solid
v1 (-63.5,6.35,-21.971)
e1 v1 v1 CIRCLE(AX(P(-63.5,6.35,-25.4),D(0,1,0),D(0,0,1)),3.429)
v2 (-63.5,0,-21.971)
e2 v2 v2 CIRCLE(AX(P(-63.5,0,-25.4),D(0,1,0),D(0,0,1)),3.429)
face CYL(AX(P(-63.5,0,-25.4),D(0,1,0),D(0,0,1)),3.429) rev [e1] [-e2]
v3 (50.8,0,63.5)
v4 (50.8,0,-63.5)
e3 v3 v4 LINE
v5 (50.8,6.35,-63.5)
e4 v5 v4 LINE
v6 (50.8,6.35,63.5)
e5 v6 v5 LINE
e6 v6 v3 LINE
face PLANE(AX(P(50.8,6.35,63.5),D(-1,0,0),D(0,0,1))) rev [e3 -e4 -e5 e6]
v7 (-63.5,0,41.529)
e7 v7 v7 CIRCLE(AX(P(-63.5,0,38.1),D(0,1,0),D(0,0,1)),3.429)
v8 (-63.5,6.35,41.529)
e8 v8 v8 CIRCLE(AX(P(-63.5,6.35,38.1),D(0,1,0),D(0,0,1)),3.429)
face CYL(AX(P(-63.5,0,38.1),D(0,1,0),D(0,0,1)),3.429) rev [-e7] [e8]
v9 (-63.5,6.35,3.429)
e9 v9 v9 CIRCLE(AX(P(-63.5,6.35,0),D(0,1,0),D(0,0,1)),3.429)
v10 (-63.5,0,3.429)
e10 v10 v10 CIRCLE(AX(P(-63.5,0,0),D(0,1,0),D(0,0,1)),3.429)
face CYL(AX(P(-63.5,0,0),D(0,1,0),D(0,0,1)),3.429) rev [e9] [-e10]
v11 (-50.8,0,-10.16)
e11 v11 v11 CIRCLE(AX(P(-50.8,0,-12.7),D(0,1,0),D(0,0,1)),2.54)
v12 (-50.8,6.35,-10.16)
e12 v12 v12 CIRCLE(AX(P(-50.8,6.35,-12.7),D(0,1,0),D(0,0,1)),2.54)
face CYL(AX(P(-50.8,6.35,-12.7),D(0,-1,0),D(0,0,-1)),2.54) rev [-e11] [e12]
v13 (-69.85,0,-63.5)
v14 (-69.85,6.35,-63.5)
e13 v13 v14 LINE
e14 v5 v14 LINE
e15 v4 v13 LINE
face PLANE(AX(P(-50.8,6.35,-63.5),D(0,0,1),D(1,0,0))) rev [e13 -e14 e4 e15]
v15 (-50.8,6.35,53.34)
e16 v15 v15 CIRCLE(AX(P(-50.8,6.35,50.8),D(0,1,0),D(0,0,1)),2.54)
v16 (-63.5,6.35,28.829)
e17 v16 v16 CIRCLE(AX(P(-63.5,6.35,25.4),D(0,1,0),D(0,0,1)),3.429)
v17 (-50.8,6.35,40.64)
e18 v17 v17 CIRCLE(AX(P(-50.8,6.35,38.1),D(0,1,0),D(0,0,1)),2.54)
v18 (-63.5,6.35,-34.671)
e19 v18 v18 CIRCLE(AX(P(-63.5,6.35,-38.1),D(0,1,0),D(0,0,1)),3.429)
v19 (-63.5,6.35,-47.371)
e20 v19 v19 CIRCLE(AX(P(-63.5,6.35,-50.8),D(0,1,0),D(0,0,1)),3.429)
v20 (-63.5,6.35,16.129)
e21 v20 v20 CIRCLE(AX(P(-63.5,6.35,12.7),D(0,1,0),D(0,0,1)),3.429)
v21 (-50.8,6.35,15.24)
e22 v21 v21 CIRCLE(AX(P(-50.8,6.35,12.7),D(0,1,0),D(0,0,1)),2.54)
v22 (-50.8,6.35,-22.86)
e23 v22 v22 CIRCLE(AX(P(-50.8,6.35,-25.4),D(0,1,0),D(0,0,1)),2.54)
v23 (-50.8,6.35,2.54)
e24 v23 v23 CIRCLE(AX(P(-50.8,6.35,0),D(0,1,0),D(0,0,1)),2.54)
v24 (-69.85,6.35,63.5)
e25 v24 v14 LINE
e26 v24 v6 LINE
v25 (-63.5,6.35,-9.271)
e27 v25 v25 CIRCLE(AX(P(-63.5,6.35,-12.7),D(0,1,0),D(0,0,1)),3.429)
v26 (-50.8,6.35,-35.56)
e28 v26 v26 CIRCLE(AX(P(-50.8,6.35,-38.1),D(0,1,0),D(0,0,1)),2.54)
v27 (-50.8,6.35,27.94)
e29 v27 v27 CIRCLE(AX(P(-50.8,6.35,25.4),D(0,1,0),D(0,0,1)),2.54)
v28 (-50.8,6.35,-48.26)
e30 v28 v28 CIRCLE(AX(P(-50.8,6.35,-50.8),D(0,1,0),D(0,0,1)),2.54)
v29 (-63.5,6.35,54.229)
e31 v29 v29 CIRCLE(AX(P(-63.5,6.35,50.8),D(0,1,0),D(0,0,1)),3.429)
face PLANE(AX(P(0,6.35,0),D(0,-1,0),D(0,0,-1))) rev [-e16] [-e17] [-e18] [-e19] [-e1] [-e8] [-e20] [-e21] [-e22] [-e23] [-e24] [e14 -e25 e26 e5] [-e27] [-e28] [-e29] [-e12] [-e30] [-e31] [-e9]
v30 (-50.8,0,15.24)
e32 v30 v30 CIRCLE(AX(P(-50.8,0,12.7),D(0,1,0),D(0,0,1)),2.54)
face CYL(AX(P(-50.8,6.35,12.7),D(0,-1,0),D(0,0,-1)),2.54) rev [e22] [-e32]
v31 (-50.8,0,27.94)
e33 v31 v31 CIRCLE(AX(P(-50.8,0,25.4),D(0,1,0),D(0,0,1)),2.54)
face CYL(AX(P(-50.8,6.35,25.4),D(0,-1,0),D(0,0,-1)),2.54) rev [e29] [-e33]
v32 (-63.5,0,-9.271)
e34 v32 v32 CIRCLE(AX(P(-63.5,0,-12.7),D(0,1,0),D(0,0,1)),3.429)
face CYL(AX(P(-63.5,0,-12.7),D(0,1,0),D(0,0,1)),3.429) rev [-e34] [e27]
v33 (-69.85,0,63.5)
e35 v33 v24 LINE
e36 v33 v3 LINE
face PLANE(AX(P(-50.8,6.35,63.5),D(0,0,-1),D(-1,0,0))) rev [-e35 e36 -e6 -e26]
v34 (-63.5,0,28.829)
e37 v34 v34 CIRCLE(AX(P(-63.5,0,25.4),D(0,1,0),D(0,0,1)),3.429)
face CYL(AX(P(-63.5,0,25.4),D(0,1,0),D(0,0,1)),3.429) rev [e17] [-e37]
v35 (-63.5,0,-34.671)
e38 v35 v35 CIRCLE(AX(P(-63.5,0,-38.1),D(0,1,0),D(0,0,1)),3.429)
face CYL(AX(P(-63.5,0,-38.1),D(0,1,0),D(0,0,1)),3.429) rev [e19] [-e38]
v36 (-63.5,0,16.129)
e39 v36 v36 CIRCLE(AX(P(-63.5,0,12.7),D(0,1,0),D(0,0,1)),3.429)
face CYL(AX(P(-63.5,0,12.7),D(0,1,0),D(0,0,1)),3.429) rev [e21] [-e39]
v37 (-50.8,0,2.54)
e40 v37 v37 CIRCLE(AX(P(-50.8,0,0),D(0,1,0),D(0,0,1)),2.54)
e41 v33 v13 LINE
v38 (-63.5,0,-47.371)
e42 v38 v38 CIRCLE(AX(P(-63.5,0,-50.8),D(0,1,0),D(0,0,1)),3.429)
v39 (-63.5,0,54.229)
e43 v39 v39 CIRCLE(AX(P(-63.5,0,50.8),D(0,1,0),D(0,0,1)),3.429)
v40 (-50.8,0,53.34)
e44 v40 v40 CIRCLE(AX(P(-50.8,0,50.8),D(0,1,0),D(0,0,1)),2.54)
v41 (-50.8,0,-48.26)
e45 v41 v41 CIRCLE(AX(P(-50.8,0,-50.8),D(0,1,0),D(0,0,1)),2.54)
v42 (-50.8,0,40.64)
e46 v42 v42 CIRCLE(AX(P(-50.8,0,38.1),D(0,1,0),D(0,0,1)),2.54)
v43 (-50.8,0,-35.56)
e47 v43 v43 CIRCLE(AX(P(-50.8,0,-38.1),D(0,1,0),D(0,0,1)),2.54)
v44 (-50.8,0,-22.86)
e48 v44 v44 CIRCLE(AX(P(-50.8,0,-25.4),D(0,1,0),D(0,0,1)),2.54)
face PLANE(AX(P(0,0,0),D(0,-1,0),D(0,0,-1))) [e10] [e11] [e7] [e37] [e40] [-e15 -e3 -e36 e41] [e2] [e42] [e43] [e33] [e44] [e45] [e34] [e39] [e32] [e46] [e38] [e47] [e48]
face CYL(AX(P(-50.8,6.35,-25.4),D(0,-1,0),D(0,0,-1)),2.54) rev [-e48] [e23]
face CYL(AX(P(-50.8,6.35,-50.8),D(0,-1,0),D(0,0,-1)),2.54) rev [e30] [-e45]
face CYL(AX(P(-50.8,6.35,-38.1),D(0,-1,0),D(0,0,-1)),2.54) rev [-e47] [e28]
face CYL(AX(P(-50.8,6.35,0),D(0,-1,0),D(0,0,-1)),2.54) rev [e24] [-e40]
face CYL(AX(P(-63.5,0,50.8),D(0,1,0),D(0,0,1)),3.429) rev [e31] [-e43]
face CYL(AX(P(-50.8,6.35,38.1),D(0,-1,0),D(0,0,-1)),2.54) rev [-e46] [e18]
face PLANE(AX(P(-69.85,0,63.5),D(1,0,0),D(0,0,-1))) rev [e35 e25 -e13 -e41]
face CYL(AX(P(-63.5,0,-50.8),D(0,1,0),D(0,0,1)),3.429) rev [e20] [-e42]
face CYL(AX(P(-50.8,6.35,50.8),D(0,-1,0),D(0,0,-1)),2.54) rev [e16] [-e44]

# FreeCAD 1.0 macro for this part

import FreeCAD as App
import Part
import Sketcher
Q = App.Units.Quantity

doc = App.newDocument("Part")
body = doc.addObject("PartDesign::Body", "Body")

# Sketch on XZ plane
sketch1 = doc.addObject("Sketcher::SketchObject", "Sketch")
body.addObject(sketch1)
sketch1.AttachmentSupport = (doc.XZ_Plane, [""])
sketch1.MapMode = "FlatFace"
sketch1.addGeometry([
    Part.LineSegment(App.Vector(-50.8, -63.5, 0), App.Vector(-50.8, 63.5, 0)),
    Part.LineSegment(App.Vector(-50.8, 63.5, 0), App.Vector(50.8, 63.5, 0)),
    Part.LineSegment(App.Vector(50.8, 63.5, 0), App.Vector(50.8, -63.5, 0)),
    Part.LineSegment(App.Vector(50.8, -63.5, 0), App.Vector(-50.8, -63.5, 0)),
], False)
sketch1.addConstraint([
    Sketcher.Constraint("Coincident", 0, 2, 1, 1),
    Sketcher.Constraint("Coincident", 1, 2, 2, 1),
    Sketcher.Constraint("Coincident", 2, 2, 3, 1),
    Sketcher.Constraint("Coincident", 3, 2, 0, 1),
    Sketcher.Constraint("Vertical", 0),
    Sketcher.Constraint("Horizontal", 1),
    Sketcher.Constraint("Vertical", 2),
    Sketcher.Constraint("Horizontal", 3),
    Sketcher.Constraint("Symmetric", 0, 2, 2, 2, -1, 1),
    Sketcher.Constraint("DistanceX", 1, 1, 1, 2, Q("4 in")),
    Sketcher.Constraint("DistanceY", 0, 1, 0, 2, Q("5 in")),
])
pad1 = doc.addObject("PartDesign::Pad", "Pad")
body.addObject(pad1)
pad1.Profile = sketch1
pad1.Length = Q("0.25 in")
pad1.Reversed = True

# Sketch on XZ plane
sketch2 = doc.addObject("Sketcher::SketchObject", "Sketch001")
body.addObject(sketch2)
sketch2.AttachmentSupport = (doc.XZ_Plane, [""])
sketch2.MapMode = "FlatFace"
sketch2.AttachmentOffset = App.Placement(App.Vector(0, 0, -0.25 * 25.4), App.Rotation())
sketch2.addGeometry([
    Part.LineSegment(App.Vector(-114.3, -63.5, 0), App.Vector(-114.3, 63.5, 0)),  # 0
    Part.LineSegment(App.Vector(-114.3, 63.5, 0), App.Vector(-50.8, 63.5, 0)),  # 1
    Part.LineSegment(App.Vector(-50.8, 63.5, 0), App.Vector(-50.8, -63.5, 0)),  # 2
    Part.LineSegment(App.Vector(-50.8, -63.5, 0), App.Vector(-114.3, -63.5, 0)),  # 3
    Part.Circle(App.Vector(-101.6, 50.8, 0), App.Vector(0, 0, 1), 3.429),  # 4
    Part.Circle(App.Vector(-101.6, 38.1, 0), App.Vector(0, 0, 1), 3.429),  # 5
    Part.Circle(App.Vector(-88.9, 50.8, 0), App.Vector(0, 0, 1), 3.429),  # 6
    Part.Circle(App.Vector(-88.9, 38.1, 0), App.Vector(0, 0, 1), 3.429),  # 7
    Part.Circle(App.Vector(-101.6, 25.4, 0), App.Vector(0, 0, 1), 3.429),  # 8
    Part.Circle(App.Vector(-101.6, 12.7, 0), App.Vector(0, 0, 1), 3.429),  # 9
    Part.Circle(App.Vector(-88.9, 25.4, 0), App.Vector(0, 0, 1), 3.429),  # 10
    Part.Circle(App.Vector(-88.9, 12.7, 0), App.Vector(0, 0, 1), 3.429),  # 11
    Part.Circle(App.Vector(-76.2, 50.8, 0), App.Vector(0, 0, 1), 3.429),  # 12
    Part.Circle(App.Vector(-76.2, 38.1, 0), App.Vector(0, 0, 1), 3.429),  # 13
    Part.Circle(App.Vector(-63.5, 50.8, 0), App.Vector(0, 0, 1), 3.429),  # 14
    Part.Circle(App.Vector(-63.5, 38.1, 0), App.Vector(0, 0, 1), 3.429),  # 15
    Part.Circle(App.Vector(-76.2, 25.4, 0), App.Vector(0, 0, 1), 3.429),  # 16
    Part.Circle(App.Vector(-76.2, 12.7, 0), App.Vector(0, 0, 1), 3.429),  # 17
    Part.Circle(App.Vector(-63.5, 25.4, 0), App.Vector(0, 0, 1), 3.429),  # 18
    Part.Circle(App.Vector(-63.5, 12.7, 0), App.Vector(0, 0, 1), 3.429),  # 19
    Part.Circle(App.Vector(-101.6, 0, 0), App.Vector(0, 0, 1), 3.429),  # 20
    Part.Circle(App.Vector(-101.6, -12.7, 0), App.Vector(0, 0, 1), 3.429),  # 21
    Part.Circle(App.Vector(-101.6, -25.4, 0), App.Vector(0, 0, 1), 3.429),  # 22
    Part.Circle(App.Vector(-88.9, 0, 0), App.Vector(0, 0, 1), 3.429),  # 23
    Part.Circle(App.Vector(-88.9, -12.7, 0), App.Vector(0, 0, 1), 3.429),  # 24
    Part.Circle(App.Vector(-88.9, -25.4, 0), App.Vector(0, 0, 1), 3.429),  # 25
    Part.Circle(App.Vector(-101.6, -38.1, 0), App.Vector(0, 0, 1), 3.429),  # 26
    Part.Circle(App.Vector(-101.6, -50.8, 0), App.Vector(0, 0, 1), 3.429),  # 27
    Part.Circle(App.Vector(-88.9, -38.1, 0), App.Vector(0, 0, 1), 3.429),  # 28
    Part.Circle(App.Vector(-88.9, -50.8, 0), App.Vector(0, 0, 1), 3.429),  # 29
    Part.Circle(App.Vector(-76.2, 0, 0), App.Vector(0, 0, 1), 3.429),  # 30
    Part.Circle(App.Vector(-76.2, -12.7, 0), App.Vector(0, 0, 1), 3.429),  # 31
    Part.Circle(App.Vector(-76.2, -25.4, 0), App.Vector(0, 0, 1), 3.429),  # 32
    Part.Circle(App.Vector(-63.5, 0, 0), App.Vector(0, 0, 1), 3.429),  # 33
    Part.Circle(App.Vector(-63.5, -12.7, 0), App.Vector(0, 0, 1), 3.429),  # 34
    Part.Circle(App.Vector(-63.5, -25.4, 0), App.Vector(0, 0, 1), 3.429),  # 35
    Part.Circle(App.Vector(-76.2, -38.1, 0), App.Vector(0, 0, 1), 3.429),  # 36
    Part.Circle(App.Vector(-76.2, -50.8, 0), App.Vector(0, 0, 1), 3.429),  # 37
    Part.Circle(App.Vector(-63.5, -38.1, 0), App.Vector(0, 0, 1), 3.429),  # 38
    Part.Circle(App.Vector(-63.5, -50.8, 0), App.Vector(0, 0, 1), 3.429),  # 39
], False)
sketch2.addConstraint([
    Sketcher.Constraint("Coincident", 0, 2, 1, 1),
    Sketcher.Constraint("Coincident", 1, 2, 2, 1),
    Sketcher.Constraint("Coincident", 2, 2, 3, 1),
    Sketcher.Constraint("Coincident", 3, 2, 0, 1),
    Sketcher.Constraint("Vertical", 0),
    Sketcher.Constraint("Horizontal", 1),
    Sketcher.Constraint("Vertical", 2),
    Sketcher.Constraint("Horizontal", 3),
    Sketcher.Constraint("Equal", 4, 5),
    Sketcher.Constraint("Equal", 5, 6),
    Sketcher.Constraint("Equal", 6, 7),
    Sketcher.Constraint("Equal", 7, 8),
    Sketcher.Constraint("Equal", 8, 9),
    Sketcher.Constraint("Equal", 9, 10),
    Sketcher.Constraint("Equal", 10, 11),
    Sketcher.Constraint("Equal", 11, 12),
    Sketcher.Constraint("Equal", 12, 13),
    Sketcher.Constraint("Equal", 13, 14),
    Sketcher.Constraint("Equal", 14, 15),
    Sketcher.Constraint("Equal", 15, 16),
    Sketcher.Constraint("Equal", 16, 17),
    Sketcher.Constraint("Equal", 17, 18),
    Sketcher.Constraint("Equal", 18, 19),
    Sketcher.Constraint("Equal", 19, 20),
    Sketcher.Constraint("Equal", 20, 21),
    Sketcher.Constraint("Equal", 21, 22),
    Sketcher.Constraint("Equal", 22, 23),
    Sketcher.Constraint("Equal", 23, 24),
    Sketcher.Constraint("Equal", 24, 25),
    Sketcher.Constraint("Equal", 25, 26),
    Sketcher.Constraint("Equal", 26, 27),
    Sketcher.Constraint("Equal", 27, 28),
    Sketcher.Constraint("Equal", 28, 29),
    Sketcher.Constraint("Equal", 29, 30),
    Sketcher.Constraint("Equal", 30, 31),
    Sketcher.Constraint("Equal", 31, 32),
    Sketcher.Constraint("Equal", 32, 33),
    Sketcher.Constraint("Equal", 33, 34),
    Sketcher.Constraint("Equal", 34, 35),
    Sketcher.Constraint("Equal", 35, 36),
    Sketcher.Constraint("Equal", 36, 37),
    Sketcher.Constraint("Equal", 37, 38),
    Sketcher.Constraint("Equal", 38, 39),
    Sketcher.Constraint("Symmetric", 9, 3, 21, 3, -1),
    Sketcher.Constraint("Symmetric", 8, 3, 22, 3, -1),
    Sketcher.Constraint("Symmetric", 11, 3, 24, 3, -1),
    Sketcher.Constraint("Symmetric", 10, 3, 25, 3, -1),
    Sketcher.Constraint("Symmetric", 5, 3, 26, 3, -1),
    Sketcher.Constraint("Symmetric", 4, 3, 27, 3, -1),
    Sketcher.Constraint("Symmetric", 7, 3, 28, 3, -1),
    Sketcher.Constraint("Symmetric", 6, 3, 29, 3, -1),
    Sketcher.Constraint("Symmetric", 17, 3, 31, 3, -1),
    Sketcher.Constraint("Symmetric", 16, 3, 32, 3, -1),
    Sketcher.Constraint("Symmetric", 19, 3, 34, 3, -1),
    Sketcher.Constraint("Symmetric", 18, 3, 35, 3, -1),
    Sketcher.Constraint("Symmetric", 13, 3, 36, 3, -1),
    Sketcher.Constraint("Symmetric", 12, 3, 37, 3, -1),
    Sketcher.Constraint("Symmetric", 15, 3, 38, 3, -1),
    Sketcher.Constraint("Symmetric", 14, 3, 39, 3, -1),
    Sketcher.Constraint("PointOnObject", 20, 3, -1),
    Sketcher.Constraint("PointOnObject", 23, 3, -1),
    Sketcher.Constraint("PointOnObject", 30, 3, -1),
    Sketcher.Constraint("PointOnObject", 33, 3, -1),
    Sketcher.Constraint("Horizontal", 4, 3, 6, 3),
    Sketcher.Constraint("Horizontal", 5, 3, 7, 3),
    Sketcher.Constraint("Horizontal", 8, 3, 10, 3),
    Sketcher.Constraint("Horizontal", 9, 3, 11, 3),
    Sketcher.Constraint("Horizontal", 6, 3, 12, 3),
    Sketcher.Constraint("Horizontal", 7, 3, 13, 3),
    Sketcher.Constraint("Horizontal", 12, 3, 14, 3),
    Sketcher.Constraint("Horizontal", 13, 3, 15, 3),
    Sketcher.Constraint("Horizontal", 10, 3, 16, 3),
    Sketcher.Constraint("Horizontal", 11, 3, 17, 3),
    Sketcher.Constraint("Horizontal", 16, 3, 18, 3),
    Sketcher.Constraint("Horizontal", 17, 3, 19, 3),
    Sketcher.Constraint("Vertical", 4, 3, 5, 3),
    Sketcher.Constraint("Vertical", 6, 3, 7, 3),
    Sketcher.Constraint("Vertical", 5, 3, 8, 3),
    Sketcher.Constraint("Vertical", 8, 3, 9, 3),
    Sketcher.Constraint("Vertical", 7, 3, 10, 3),
    Sketcher.Constraint("Vertical", 10, 3, 11, 3),
    Sketcher.Constraint("Vertical", 12, 3, 13, 3),
    Sketcher.Constraint("Vertical", 14, 3, 15, 3),
    Sketcher.Constraint("Vertical", 13, 3, 16, 3),
    Sketcher.Constraint("Vertical", 16, 3, 17, 3),
    Sketcher.Constraint("Vertical", 15, 3, 18, 3),
    Sketcher.Constraint("Vertical", 18, 3, 19, 3),
    Sketcher.Constraint("Vertical", 9, 3, 20, 3),
    Sketcher.Constraint("Vertical", 11, 3, 23, 3),
    Sketcher.Constraint("Vertical", 17, 3, 30, 3),
    Sketcher.Constraint("Vertical", 19, 3, 33, 3),
    Sketcher.Constraint("Diameter", 4, Q("0.27 in")),
    Sketcher.Constraint("DistanceY", 0, 1, 0, 2, Q("5 in")),
    Sketcher.Constraint("DistanceX", 1, 1, 1, 2, Q("2.5 in")),
    Sketcher.Constraint("DistanceX", 4, 3, -1, 1, Q("4 in")),
    Sketcher.Constraint("DistanceY", -1, 1, 4, 3, Q("2 in")),
    Sketcher.Constraint("DistanceY", -1, 1, 8, 3, Q("1 in")),
    Sketcher.Constraint("DistanceX", 12, 3, -1, 1, Q("3 in")),
    Sketcher.Constraint("DistanceX", 1, 2, -1, 1, Q("2 in")),
    Sketcher.Constraint("DistanceY", 9, 3, 5, 3, Q("1 in")),
    Sketcher.Constraint("DistanceX", 6, 3, 14, 3, Q("1 in")),
    Sketcher.Constraint("DistanceY", 21, 3, 9, 3, Q("1 in")),
    Sketcher.Constraint("DistanceX", 0, 2, 6, 3, Q("1 in")),
    Sketcher.Constraint("DistanceY", 5, 3, 0, 2, Q("1 in")),
])
pad2 = doc.addObject("PartDesign::Pad", "Pad001")
body.addObject(pad2)
pad2.Profile = sketch2
pad2.Length = Q("0.25 in")

# Sketch on XZ plane
sketch3 = doc.addObject("Sketcher::SketchObject", "Sketch002")
body.addObject(sketch3)
sketch3.AttachmentSupport = (doc.XZ_Plane, [""])
sketch3.MapMode = "FlatFace"
sketch3.AttachmentOffset = App.Placement(App.Vector(0, 0, -0.25 * 25.4), App.Rotation())
sketch3.addGeometry([
    Part.LineSegment(App.Vector(-114.3, -63.5, 0), App.Vector(-114.3, 63.5, 0)),
    Part.LineSegment(App.Vector(-114.3, 63.5, 0), App.Vector(-69.85, 63.5, 0)),
    Part.LineSegment(App.Vector(-69.85, 63.5, 0), App.Vector(-69.85, -63.5, 0)),
    Part.LineSegment(App.Vector(-69.85, -63.5, 0), App.Vector(-114.3, -63.5, 0)),
], False)
sketch3.addConstraint([
    Sketcher.Constraint("Coincident", 0, 2, 1, 1),
    Sketcher.Constraint("Coincident", 1, 2, 2, 1),
    Sketcher.Constraint("Coincident", 2, 2, 3, 1),
    Sketcher.Constraint("Coincident", 3, 2, 0, 1),
    Sketcher.Constraint("Vertical", 0),
    Sketcher.Constraint("Horizontal", 1),
    Sketcher.Constraint("Vertical", 2),
    Sketcher.Constraint("Horizontal", 3),
    Sketcher.Constraint("DistanceY", 0, 1, 0, 2, Q("5 in")),
    Sketcher.Constraint("DistanceX", 1, 1, 1, 2, Q("1.75 in")),
    Sketcher.Constraint("DistanceX", 0, 2, -1, 1, Q("4.5 in")),
    Sketcher.Constraint("DistanceY", -1, 1, 0, 2, Q("2.5 in")),
])
pocket1 = doc.addObject("PartDesign::Pocket", "Pocket")
body.addObject(pocket1)
pocket1.Profile = sketch3
pocket1.Type = "ThroughAll"
pocket1.Reversed = True

# Sketch on XZ plane
sketch4 = doc.addObject("Sketcher::SketchObject", "Sketch003")
body.addObject(sketch4)
sketch4.AttachmentSupport = (doc.XZ_Plane, [""])
sketch4.MapMode = "FlatFace"
sketch4.addGeometry([
    Part.Circle(App.Vector(-50.8, -50.8, 0), App.Vector(0, 0, 1), 2.54),  # 0
    Part.Circle(App.Vector(-50.8, -38.1, 0), App.Vector(0, 0, 1), 2.54),  # 1
    Part.Circle(App.Vector(-50.8, -25.4, 0), App.Vector(0, 0, 1), 2.54),  # 2
    Part.Circle(App.Vector(-50.8, -12.7, 0), App.Vector(0, 0, 1), 2.54),  # 3
    Part.Circle(App.Vector(-50.8, 0, 0), App.Vector(0, 0, 1), 2.54),  # 4
    Part.Circle(App.Vector(-50.8, 12.7, 0), App.Vector(0, 0, 1), 2.54),  # 5
    Part.Circle(App.Vector(-50.8, 25.4, 0), App.Vector(0, 0, 1), 2.54),  # 6
    Part.Circle(App.Vector(-50.8, 38.1, 0), App.Vector(0, 0, 1), 2.54),  # 7
    Part.Circle(App.Vector(-50.8, 50.8, 0), App.Vector(0, 0, 1), 2.54),  # 8
], False)
sketch4.addConstraint([
    Sketcher.Constraint("Equal", 0, 1),
    Sketcher.Constraint("Equal", 1, 2),
    Sketcher.Constraint("Equal", 2, 3),
    Sketcher.Constraint("Equal", 3, 4),
    Sketcher.Constraint("Equal", 4, 5),
    Sketcher.Constraint("Equal", 5, 6),
    Sketcher.Constraint("Equal", 6, 7),
    Sketcher.Constraint("Equal", 7, 8),
    Sketcher.Constraint("Symmetric", 3, 3, 5, 3, -1),
    Sketcher.Constraint("Symmetric", 2, 3, 6, 3, -1),
    Sketcher.Constraint("Symmetric", 1, 3, 7, 3, -1),
    Sketcher.Constraint("Symmetric", 0, 3, 8, 3, -1),
    Sketcher.Constraint("PointOnObject", 4, 3, -1),
    Sketcher.Constraint("Vertical", 0, 3, 1, 3),
    Sketcher.Constraint("Vertical", 1, 3, 2, 3),
    Sketcher.Constraint("Vertical", 2, 3, 3, 3),
    Sketcher.Constraint("Vertical", 3, 3, 4, 3),
    Sketcher.Constraint("Diameter", 0, Q("0.2 in")),
    Sketcher.Constraint("DistanceX", 0, 3, -1, 1, Q("2 in")),
    Sketcher.Constraint("DistanceY", 0, 3, -1, 1, Q("2 in")),
    Sketcher.Constraint("DistanceY", 2, 3, -1, 1, Q("1 in")),
    Sketcher.Constraint("DistanceY", 1, 3, 3, 3, Q("1 in")),
    Sketcher.Constraint("DistanceY", 3, 3, 5, 3, Q("1 in")),
])
pocket2 = doc.addObject("PartDesign::Pocket", "Pocket001")
body.addObject(pocket2)
pocket2.Profile = sketch4
pocket2.Type = "ThroughAll"

doc.recompute()
